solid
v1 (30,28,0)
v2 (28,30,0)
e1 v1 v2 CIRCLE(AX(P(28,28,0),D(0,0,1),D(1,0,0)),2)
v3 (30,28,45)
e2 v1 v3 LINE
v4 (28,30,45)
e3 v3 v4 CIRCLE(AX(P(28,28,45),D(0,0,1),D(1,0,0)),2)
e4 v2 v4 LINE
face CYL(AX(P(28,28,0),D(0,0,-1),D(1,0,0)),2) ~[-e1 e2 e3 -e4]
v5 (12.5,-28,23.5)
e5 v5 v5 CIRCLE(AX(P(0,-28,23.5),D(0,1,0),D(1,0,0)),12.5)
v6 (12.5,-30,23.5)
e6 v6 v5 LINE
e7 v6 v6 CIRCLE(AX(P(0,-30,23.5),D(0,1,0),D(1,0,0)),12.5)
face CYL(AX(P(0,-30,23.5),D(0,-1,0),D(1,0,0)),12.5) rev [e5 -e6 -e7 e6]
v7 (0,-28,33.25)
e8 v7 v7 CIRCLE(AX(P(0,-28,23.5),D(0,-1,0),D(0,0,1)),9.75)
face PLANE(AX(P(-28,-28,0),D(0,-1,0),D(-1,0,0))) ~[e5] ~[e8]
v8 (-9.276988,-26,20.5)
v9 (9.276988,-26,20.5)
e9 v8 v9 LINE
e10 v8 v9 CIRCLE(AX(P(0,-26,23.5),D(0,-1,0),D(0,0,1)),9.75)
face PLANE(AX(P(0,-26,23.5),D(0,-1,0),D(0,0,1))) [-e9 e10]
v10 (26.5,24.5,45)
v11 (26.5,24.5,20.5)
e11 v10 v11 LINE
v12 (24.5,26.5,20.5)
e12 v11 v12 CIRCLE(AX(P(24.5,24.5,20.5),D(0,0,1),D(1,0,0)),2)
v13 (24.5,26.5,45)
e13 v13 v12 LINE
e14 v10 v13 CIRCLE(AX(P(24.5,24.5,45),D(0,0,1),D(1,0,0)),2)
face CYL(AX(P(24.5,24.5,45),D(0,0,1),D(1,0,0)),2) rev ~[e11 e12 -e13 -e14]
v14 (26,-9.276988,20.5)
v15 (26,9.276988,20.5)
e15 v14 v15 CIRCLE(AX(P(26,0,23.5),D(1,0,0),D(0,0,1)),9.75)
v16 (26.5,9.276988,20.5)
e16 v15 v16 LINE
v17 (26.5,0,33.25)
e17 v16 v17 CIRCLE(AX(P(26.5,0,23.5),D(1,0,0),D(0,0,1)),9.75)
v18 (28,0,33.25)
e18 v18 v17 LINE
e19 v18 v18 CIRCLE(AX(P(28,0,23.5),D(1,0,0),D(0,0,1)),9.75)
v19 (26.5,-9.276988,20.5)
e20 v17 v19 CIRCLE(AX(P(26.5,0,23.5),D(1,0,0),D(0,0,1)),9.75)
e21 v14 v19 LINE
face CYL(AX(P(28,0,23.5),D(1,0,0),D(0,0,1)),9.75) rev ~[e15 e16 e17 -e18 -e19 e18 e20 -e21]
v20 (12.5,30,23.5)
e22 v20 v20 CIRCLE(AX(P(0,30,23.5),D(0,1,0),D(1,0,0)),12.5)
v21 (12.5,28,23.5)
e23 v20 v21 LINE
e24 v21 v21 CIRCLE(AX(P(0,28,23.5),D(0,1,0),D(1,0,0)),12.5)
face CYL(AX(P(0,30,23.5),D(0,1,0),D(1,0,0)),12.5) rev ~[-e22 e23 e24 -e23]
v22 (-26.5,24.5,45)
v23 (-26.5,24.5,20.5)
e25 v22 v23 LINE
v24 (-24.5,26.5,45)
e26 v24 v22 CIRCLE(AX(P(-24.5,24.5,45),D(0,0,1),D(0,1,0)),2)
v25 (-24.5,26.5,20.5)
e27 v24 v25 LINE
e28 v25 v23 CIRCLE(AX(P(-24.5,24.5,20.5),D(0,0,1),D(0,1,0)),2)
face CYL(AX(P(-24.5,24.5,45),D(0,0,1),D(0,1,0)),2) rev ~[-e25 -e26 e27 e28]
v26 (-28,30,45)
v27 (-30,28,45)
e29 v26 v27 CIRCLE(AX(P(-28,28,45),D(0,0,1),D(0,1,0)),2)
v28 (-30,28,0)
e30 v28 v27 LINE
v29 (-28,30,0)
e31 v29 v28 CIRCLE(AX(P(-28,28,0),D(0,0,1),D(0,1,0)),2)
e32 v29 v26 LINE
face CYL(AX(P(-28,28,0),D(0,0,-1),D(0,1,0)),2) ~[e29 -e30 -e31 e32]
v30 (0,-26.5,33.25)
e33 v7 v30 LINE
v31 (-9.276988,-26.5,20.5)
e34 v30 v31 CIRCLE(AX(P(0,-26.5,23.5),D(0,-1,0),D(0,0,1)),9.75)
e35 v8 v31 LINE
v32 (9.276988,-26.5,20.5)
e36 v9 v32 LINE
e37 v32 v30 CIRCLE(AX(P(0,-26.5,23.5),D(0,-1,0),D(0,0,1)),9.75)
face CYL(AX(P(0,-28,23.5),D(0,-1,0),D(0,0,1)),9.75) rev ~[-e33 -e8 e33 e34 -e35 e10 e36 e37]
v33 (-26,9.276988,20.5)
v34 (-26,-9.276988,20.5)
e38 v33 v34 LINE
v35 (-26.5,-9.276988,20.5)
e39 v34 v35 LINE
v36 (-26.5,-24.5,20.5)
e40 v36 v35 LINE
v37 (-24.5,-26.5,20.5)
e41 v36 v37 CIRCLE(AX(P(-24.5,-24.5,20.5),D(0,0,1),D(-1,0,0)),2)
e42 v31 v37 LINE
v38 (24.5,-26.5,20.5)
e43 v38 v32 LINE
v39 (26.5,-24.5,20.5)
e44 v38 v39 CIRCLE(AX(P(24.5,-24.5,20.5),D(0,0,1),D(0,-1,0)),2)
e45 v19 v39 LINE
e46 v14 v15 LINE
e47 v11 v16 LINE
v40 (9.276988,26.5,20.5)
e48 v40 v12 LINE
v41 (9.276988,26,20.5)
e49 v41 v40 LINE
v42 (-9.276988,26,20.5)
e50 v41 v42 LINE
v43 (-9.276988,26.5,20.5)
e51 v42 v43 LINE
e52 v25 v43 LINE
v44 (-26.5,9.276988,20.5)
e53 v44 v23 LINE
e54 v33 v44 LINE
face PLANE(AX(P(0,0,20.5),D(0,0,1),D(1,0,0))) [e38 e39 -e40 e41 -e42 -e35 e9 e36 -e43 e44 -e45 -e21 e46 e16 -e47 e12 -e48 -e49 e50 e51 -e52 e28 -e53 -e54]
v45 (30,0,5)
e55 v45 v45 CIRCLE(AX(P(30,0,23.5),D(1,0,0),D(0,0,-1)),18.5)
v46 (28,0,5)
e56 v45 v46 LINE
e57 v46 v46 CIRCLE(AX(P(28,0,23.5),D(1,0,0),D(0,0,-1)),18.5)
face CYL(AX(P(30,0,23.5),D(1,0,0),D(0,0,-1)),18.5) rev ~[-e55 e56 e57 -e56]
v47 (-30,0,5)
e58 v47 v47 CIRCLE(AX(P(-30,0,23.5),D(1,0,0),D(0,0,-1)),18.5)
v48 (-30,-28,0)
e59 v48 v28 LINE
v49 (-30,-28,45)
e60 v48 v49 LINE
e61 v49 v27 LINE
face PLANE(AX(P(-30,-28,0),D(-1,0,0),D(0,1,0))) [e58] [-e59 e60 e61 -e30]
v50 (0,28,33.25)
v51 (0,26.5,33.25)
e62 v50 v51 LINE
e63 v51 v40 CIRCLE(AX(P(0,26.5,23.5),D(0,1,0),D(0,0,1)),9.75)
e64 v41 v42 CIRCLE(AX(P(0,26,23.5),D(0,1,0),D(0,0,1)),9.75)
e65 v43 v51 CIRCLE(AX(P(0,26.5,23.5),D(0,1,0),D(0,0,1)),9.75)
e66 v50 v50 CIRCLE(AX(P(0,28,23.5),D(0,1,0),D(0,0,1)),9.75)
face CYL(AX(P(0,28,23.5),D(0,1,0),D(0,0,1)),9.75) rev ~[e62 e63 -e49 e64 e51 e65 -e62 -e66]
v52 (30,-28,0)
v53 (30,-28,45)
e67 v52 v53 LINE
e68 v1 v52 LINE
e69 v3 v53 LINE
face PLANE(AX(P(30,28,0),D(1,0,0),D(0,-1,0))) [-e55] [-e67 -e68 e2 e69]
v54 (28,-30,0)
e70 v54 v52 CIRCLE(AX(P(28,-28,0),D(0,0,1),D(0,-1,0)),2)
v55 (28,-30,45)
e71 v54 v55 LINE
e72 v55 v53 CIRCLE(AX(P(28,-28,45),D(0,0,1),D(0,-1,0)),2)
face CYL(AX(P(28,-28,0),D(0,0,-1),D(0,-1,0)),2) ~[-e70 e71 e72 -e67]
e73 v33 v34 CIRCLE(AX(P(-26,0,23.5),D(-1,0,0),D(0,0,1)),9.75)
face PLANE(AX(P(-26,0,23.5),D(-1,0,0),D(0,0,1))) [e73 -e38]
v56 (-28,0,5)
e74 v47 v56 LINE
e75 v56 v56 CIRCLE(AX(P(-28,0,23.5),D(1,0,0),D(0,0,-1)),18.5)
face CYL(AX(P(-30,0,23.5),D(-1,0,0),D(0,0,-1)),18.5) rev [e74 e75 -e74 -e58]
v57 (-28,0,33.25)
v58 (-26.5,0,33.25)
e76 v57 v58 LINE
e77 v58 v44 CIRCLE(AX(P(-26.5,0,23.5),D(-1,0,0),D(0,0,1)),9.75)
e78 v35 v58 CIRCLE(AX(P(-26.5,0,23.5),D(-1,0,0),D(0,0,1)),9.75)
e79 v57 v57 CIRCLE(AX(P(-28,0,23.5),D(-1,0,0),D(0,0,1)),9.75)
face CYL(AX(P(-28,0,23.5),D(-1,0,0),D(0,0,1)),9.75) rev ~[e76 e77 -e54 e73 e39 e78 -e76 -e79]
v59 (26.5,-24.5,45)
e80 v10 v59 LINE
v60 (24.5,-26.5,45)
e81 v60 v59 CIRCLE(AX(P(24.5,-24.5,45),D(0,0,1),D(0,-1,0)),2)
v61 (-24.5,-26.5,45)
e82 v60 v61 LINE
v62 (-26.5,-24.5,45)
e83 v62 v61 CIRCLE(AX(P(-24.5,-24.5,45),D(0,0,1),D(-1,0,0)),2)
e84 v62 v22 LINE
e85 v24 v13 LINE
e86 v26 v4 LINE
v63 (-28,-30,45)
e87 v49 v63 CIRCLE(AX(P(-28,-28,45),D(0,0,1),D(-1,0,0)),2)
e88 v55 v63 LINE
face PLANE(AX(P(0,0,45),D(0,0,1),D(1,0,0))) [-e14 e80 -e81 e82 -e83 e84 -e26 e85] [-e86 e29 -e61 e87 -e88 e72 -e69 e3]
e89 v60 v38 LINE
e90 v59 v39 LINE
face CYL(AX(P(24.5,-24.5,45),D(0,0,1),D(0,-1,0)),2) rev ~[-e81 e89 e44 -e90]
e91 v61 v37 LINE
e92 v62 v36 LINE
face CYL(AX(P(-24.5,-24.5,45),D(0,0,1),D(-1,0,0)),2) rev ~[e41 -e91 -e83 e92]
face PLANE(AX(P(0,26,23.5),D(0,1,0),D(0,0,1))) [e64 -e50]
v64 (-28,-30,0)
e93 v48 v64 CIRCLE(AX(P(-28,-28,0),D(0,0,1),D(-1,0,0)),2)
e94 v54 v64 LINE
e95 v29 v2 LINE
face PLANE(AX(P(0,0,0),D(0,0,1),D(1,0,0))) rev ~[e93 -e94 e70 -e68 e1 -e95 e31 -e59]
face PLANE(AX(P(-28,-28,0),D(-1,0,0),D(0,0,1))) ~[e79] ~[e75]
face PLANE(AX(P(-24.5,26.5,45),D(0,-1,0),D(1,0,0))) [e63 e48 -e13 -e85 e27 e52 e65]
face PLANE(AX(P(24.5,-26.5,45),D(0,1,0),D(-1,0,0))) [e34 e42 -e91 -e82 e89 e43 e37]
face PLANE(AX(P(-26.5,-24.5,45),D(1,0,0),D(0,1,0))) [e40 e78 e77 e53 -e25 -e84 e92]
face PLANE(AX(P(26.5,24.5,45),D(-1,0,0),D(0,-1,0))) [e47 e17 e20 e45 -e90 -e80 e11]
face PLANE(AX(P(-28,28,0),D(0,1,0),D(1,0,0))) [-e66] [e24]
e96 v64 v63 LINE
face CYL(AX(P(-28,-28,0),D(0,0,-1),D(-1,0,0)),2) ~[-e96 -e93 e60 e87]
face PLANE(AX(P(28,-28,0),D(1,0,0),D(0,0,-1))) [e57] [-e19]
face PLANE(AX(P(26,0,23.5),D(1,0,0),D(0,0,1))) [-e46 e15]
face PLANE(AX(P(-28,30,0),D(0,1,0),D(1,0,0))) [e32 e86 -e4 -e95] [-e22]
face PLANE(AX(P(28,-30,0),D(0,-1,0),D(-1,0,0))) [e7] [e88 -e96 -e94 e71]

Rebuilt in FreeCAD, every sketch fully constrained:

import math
import FreeCAD as App
import Part
import Sketcher

V = App.Vector
Q = App.Units.Quantity

doc = App.newDocument("Part")
body = doc.addObject("PartDesign::Body", "Body")

# Sketch on XY plane
sketch1 = body.newObject("Sketcher::SketchObject", "Sketch")
sketch1.AttachmentSupport = (doc.getObject("XY_Plane"), [""])
sketch1.MapMode = "FlatFace"
sketch1.addGeometry(Part.LineSegment(V(28, 30, 0), V(-28, 30, 0)), False)
sketch1.addGeometry(Part.ArcOfCircle(Part.Circle(V(-28, 28, 0), V(0, 0, 1), 2), math.radians(90), math.radians(180)), False)
sketch1.addGeometry(Part.LineSegment(V(-30, 28, 0), V(-30, -28, 0)), False)
sketch1.addGeometry(Part.ArcOfCircle(Part.Circle(V(-28, -28, 0), V(0, 0, 1), 2), math.radians(180), math.radians(270)), False)
sketch1.addGeometry(Part.LineSegment(V(-28, -30, 0), V(28, -30, 0)), False)
sketch1.addGeometry(Part.ArcOfCircle(Part.Circle(V(28, -28, 0), V(0, 0, 1), 2), math.radians(-90), math.radians(0)), False)
sketch1.addGeometry(Part.LineSegment(V(30, -28, 0), V(30, 28, 0)), False)
sketch1.addGeometry(Part.ArcOfCircle(Part.Circle(V(28, 28, 0), V(0, 0, 1), 2), math.radians(0), math.radians(90)), False)
sketch1.addConstraint(Sketcher.Constraint("Tangent", 0, 2, 1, 1))
sketch1.addConstraint(Sketcher.Constraint("Tangent", 1, 2, 2, 1))
sketch1.addConstraint(Sketcher.Constraint("Tangent", 2, 2, 3, 1))
sketch1.addConstraint(Sketcher.Constraint("Tangent", 3, 2, 4, 1))
sketch1.addConstraint(Sketcher.Constraint("Tangent", 4, 2, 5, 1))
sketch1.addConstraint(Sketcher.Constraint("Tangent", 5, 2, 6, 1))
sketch1.addConstraint(Sketcher.Constraint("Tangent", 6, 2, 7, 1))
sketch1.addConstraint(Sketcher.Constraint("Tangent", 7, 2, 0, 1))
sketch1.addConstraint(Sketcher.Constraint("Horizontal", 0))
sketch1.addConstraint(Sketcher.Constraint("Vertical", 2))
sketch1.addConstraint(Sketcher.Constraint("Horizontal", 4))
sketch1.addConstraint(Sketcher.Constraint("Vertical", 6))
sketch1.addConstraint(Sketcher.Constraint("Equal", 1, 3))
sketch1.addConstraint(Sketcher.Constraint("Equal", 3, 5))
sketch1.addConstraint(Sketcher.Constraint("Equal", 5, 7))
sketch1.addConstraint(Sketcher.Constraint("Symmetric", 1, 3, 5, 3, -1, 1))
sketch1.addConstraint(Sketcher.Constraint("Equal", 4, 2))
sketch1.addConstraint(Sketcher.Constraint("Radius", 1, Q("2 mm")))
sketch1.addConstraint(Sketcher.Constraint("DistanceY", -1, 1, 0, 2, Q("30 mm")))
pad1 = body.newObject("PartDesign::Pad", "Pad")
pad1.Profile = sketch1
pad1.Length = 45

# Sketch on XY plane
sketch2 = body.newObject("Sketcher::SketchObject", "Sketch001")
sketch2.AttachmentSupport = (doc.getObject("XY_Plane"), [""])
sketch2.MapMode = "FlatFace"
sketch2.AttachmentOffset = App.Placement(V(0, 0, 45), App.Rotation())
sketch2.addGeometry(Part.LineSegment(V(24.5, 26.5, 0), V(-24.5, 26.5, 0)), False)
sketch2.addGeometry(Part.ArcOfCircle(Part.Circle(V(-24.5, 24.5, 0), V(0, 0, 1), 2), math.radians(90), math.radians(180)), False)
sketch2.addGeometry(Part.LineSegment(V(-26.5, 24.5, 0), V(-26.5, -24.5, 0)), False)
sketch2.addGeometry(Part.ArcOfCircle(Part.Circle(V(-24.5, -24.5, 0), V(0, 0, 1), 2), math.radians(180), math.radians(270)), False)
sketch2.addGeometry(Part.LineSegment(V(-24.5, -26.5, 0), V(24.5, -26.5, 0)), False)
sketch2.addGeometry(Part.ArcOfCircle(Part.Circle(V(24.5, -24.5, 0), V(0, 0, 1), 2), math.radians(-90), math.radians(0)), False)
sketch2.addGeometry(Part.LineSegment(V(26.5, -24.5, 0), V(26.5, 24.5, 0)), False)
sketch2.addGeometry(Part.ArcOfCircle(Part.Circle(V(24.5, 24.5, 0), V(0, 0, 1), 2), math.radians(0), math.radians(90)), False)
sketch2.addConstraint(Sketcher.Constraint("Tangent", 0, 2, 1, 1))
sketch2.addConstraint(Sketcher.Constraint("Tangent", 1, 2, 2, 1))
sketch2.addConstraint(Sketcher.Constraint("Tangent", 2, 2, 3, 1))
sketch2.addConstraint(Sketcher.Constraint("Tangent", 3, 2, 4, 1))
sketch2.addConstraint(Sketcher.Constraint("Tangent", 4, 2, 5, 1))
sketch2.addConstraint(Sketcher.Constraint("Tangent", 5, 2, 6, 1))
sketch2.addConstraint(Sketcher.Constraint("Tangent", 6, 2, 7, 1))
sketch2.addConstraint(Sketcher.Constraint("Tangent", 7, 2, 0, 1))
sketch2.addConstraint(Sketcher.Constraint("Horizontal", 0))
sketch2.addConstraint(Sketcher.Constraint("Vertical", 2))
sketch2.addConstraint(Sketcher.Constraint("Horizontal", 4))
sketch2.addConstraint(Sketcher.Constraint("Vertical", 6))
sketch2.addConstraint(Sketcher.Constraint("Equal", 1, 3))
sketch2.addConstraint(Sketcher.Constraint("Equal", 3, 5))
sketch2.addConstraint(Sketcher.Constraint("Equal", 5, 7))
sketch2.addConstraint(Sketcher.Constraint("Symmetric", 1, 3, 5, 3, -1, 1))
sketch2.addConstraint(Sketcher.Constraint("Equal", 4, 2))
sketch2.addConstraint(Sketcher.Constraint("Radius", 1, Q("2 mm")))
sketch2.addConstraint(Sketcher.Constraint("DistanceY", -1, 1, 0, 2, Q("26.5 mm")))
pocket1 = body.newObject("PartDesign::Pocket", "Pocket")
pocket1.Profile = sketch2
pocket1.Length = 24.5

# Sketch on YZ plane
sketch3 = body.newObject("Sketcher::SketchObject", "Sketch002")
sketch3.AttachmentSupport = (doc.getObject("YZ_Plane"), [""])
sketch3.MapMode = "FlatFace"
sketch3.AttachmentOffset = App.Placement(V(0, 0, 30), App.Rotation())
sketch3.addGeometry(Part.Circle(V(0, 24, 0), V(0, 0, 1), 18), False)
sketch3.addConstraint(Sketcher.Constraint("PointOnObject", 0, 3, -2))
sketch3.addConstraint(Sketcher.Constraint("Diameter", 0, Q("37 mm")))
sketch3.addConstraint(Sketcher.Constraint("DistanceY", -1, 1, 0, 3, Q("23.5 mm")))
pocket2 = body.newObject("PartDesign::Pocket", "Pocket001")
pocket2.Profile = sketch3
pocket2.Length = 2
doc.recompute()

mirrored = body.newObject("PartDesign::Mirrored", "Mirrored")
mirrored.Originals = [pocket2]
mirrored.MirrorPlane = (doc.getObject("YZ_Plane"), [""])
body.Tip = mirrored

# Sketch on XZ plane
sketch4 = body.newObject("Sketcher::SketchObject", "Sketch003")
sketch4.AttachmentSupport = (doc.getObject("XZ_Plane"), [""])
sketch4.MapMode = "FlatFace"
sketch4.AttachmentOffset = App.Placement(V(0, 0, -30), App.Rotation())
sketch4.addGeometry(Part.Circle(V(0, 24, 0), V(0, 0, 1), 12), False)
sketch4.addConstraint(Sketcher.Constraint("PointOnObject", 0, 3, -2))
sketch4.addConstraint(Sketcher.Constraint("Diameter", 0, Q("25 mm")))
sketch4.addConstraint(Sketcher.Constraint("DistanceY", -1, 1, 0, 3, Q("23.5 mm")))
pocket3 = body.newObject("PartDesign::Pocket", "Pocket002")
pocket3.Profile = sketch4
pocket3.Length = 2
pocket3.Reversed = True
doc.recompute()

mirrored2 = body.newObject("PartDesign::Mirrored", "Mirrored001")
mirrored2.Originals = [pocket3]
mirrored2.MirrorPlane = (doc.getObject("XZ_Plane"), [""])
body.Tip = mirrored2

# Sketch on YZ plane
sketch5 = body.newObject("Sketcher::SketchObject", "Sketch004")
sketch5.AttachmentSupport = (doc.getObject("YZ_Plane"), [""])
sketch5.MapMode = "FlatFace"
sketch5.AttachmentOffset = App.Placement(V(0, 0, -28), App.Rotation())
sketch5.addGeometry(Part.Circle(V(0, 24, 0), V(0, 0, 1), 10), False)
sketch5.addConstraint(Sketcher.Constraint("PointOnObject", 0, 3, -2))
sketch5.addConstraint(Sketcher.Constraint("Diameter", 0, Q("19.5 mm")))
sketch5.addConstraint(Sketcher.Constraint("DistanceY", -1, 1, 0, 3, Q("23.5 mm")))
pocket4 = body.newObject("PartDesign::Pocket", "Pocket003")
pocket4.Profile = sketch5
pocket4.Length = 2
pocket4.Reversed = True
doc.recompute()

polarpattern = body.newObject("PartDesign::PolarPattern", "PolarPattern")
polarpattern.Originals = [pocket4]
polarpattern.Axis = (doc.getObject("Z_Axis"), [""])
polarpattern.Angle = 360
polarpattern.Occurrences = 4
body.Tip = polarpattern

doc.recompute()
